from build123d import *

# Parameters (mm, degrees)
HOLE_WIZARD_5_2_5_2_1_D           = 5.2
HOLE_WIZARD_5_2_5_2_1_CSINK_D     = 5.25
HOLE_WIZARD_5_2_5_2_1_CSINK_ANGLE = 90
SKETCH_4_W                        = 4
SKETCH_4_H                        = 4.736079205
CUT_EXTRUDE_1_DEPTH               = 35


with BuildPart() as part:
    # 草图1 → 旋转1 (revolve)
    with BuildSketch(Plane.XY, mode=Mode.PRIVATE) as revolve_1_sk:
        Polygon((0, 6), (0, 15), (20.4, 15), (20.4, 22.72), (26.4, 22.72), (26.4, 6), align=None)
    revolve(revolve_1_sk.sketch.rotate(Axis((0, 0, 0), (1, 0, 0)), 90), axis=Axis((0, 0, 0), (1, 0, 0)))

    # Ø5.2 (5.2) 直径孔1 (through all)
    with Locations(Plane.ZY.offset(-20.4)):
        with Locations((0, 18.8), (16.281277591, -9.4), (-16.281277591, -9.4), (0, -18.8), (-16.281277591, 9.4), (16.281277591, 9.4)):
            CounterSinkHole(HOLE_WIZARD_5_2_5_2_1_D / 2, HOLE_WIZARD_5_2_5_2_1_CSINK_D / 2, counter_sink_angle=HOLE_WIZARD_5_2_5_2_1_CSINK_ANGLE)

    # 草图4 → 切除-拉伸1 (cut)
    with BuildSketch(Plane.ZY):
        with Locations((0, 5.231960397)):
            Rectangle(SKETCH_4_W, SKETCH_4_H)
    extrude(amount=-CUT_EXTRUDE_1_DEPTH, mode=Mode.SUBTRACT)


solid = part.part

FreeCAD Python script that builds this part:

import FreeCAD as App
import Part
import Sketcher

V = App.Vector
Q = App.Units.Quantity

doc = App.newDocument("Part")
body = doc.addObject("PartDesign::Body", "Body")

sketch1 = body.newObject("Sketcher::SketchObject", "Sketch")
sketch1.AttachmentSupport = (doc.getObject("XY_Plane"), [""])
sketch1.MapMode = "FlatFace"
sketch1.addGeometry([
    Part.LineSegment(V(0, 15, 0), V(0, 6, 0)),
    Part.LineSegment(V(0, 6, 0), V(26.4, 6, 0)),
    Part.LineSegment(V(26.4, 6, 0), V(26.4, 22.72, 0)),
    Part.LineSegment(V(26.4, 22.72, 0), V(20.4, 22.72, 0)),
    Part.LineSegment(V(20.4, 22.72, 0), V(20.4, 15, 0)),
    Part.LineSegment(V(20.4, 15, 0), V(0, 15, 0)),
], False)
sketch1.addConstraint([
    Sketcher.Constraint("Coincident", 0, 2, 1, 1),
    Sketcher.Constraint("Coincident", 1, 2, 2, 1),
    Sketcher.Constraint("Coincident", 2, 2, 3, 1),
    Sketcher.Constraint("Coincident", 3, 2, 4, 1),
    Sketcher.Constraint("Coincident", 4, 2, 5, 1),
    Sketcher.Constraint("Coincident", 5, 2, 0, 1),
    Sketcher.Constraint("Vertical", 0),
    Sketcher.Constraint("Horizontal", 1),
    Sketcher.Constraint("Vertical", 2),
    Sketcher.Constraint("Horizontal", 3),
    Sketcher.Constraint("Vertical", 4),
    Sketcher.Constraint("Horizontal", 5),
    Sketcher.Constraint("PointOnObject", 0, 2, -2),
    Sketcher.Constraint("DistanceX", 3, 2, 3, 1, Q("6 mm")),
    Sketcher.Constraint("DistanceY", 0, 2, 0, 1, Q("9 mm")),
    Sketcher.Constraint("DistanceX", 1, 1, 1, 2, Q("26.4 mm")),
    Sketcher.Constraint("DistanceY", -1, 1, 0, 2, Q("6 mm")),
    Sketcher.Constraint("DistanceY", 2, 1, 2, 2, Q("16.72 mm")),
])
revolution = body.newObject("PartDesign::Revolution", "Revolution")
revolution.Profile = sketch1
revolution.ReferenceAxis = (sketch1, ["H_Axis"])
revolution.Angle = 360

sketch2 = body.newObject("Sketcher::SketchObject", "Sketch001")
sketch2.AttachmentSupport = (doc.getObject("YZ_Plane"), [""])
sketch2.MapMode = "FlatFace"
sketch2.AttachmentOffset = App.Placement(V(0, 0, 20.4), App.Rotation())
sketch2.addGeometry([
    Part.Circle(V(18.8, 0, 0), V(0, 0, 1), 2.6),
    Part.Circle(V(-9.4, 16.281278, 0), V(0, 0, 1), 2.6),
    Part.Circle(V(-9.4, -16.281278, 0), V(0, 0, 1), 2.6),
    Part.Circle(V(-18.8, 0, 0), V(0, 0, 1), 2.6),
    Part.Circle(V(9.4, -16.281278, 0), V(0, 0, 1), 2.6),
    Part.Circle(V(9.4, 16.281278, 0), V(0, 0, 1), 2.6),
], False)
sketch2.addConstraint([
    Sketcher.Constraint("Equal", 0, 1),
    Sketcher.Constraint("Equal", 1, 2),
    Sketcher.Constraint("Equal", 2, 3),
    Sketcher.Constraint("Equal", 3, 4),
    Sketcher.Constraint("Equal", 4, 5),
    Sketcher.Constraint("Symmetric", 0, 3, 3, 3, -1, 1),
    Sketcher.Constraint("Symmetric", 1, 3, 4, 3, -1, 1),
    Sketcher.Constraint("Symmetric", 2, 3, 5, 3, -1, 1),
    Sketcher.Constraint("Symmetric", 2, 3, 4, 3, -2),
    Sketcher.Constraint("PointOnObject", 0, 3, -1),
    Sketcher.Constraint("Diameter", 0, Q("5.2 mm")),
    Sketcher.Constraint("DistanceX", -1, 1, 0, 3, Q("18.8 mm")),
    Sketcher.Constraint("DistanceX", 1, 3, -1, 1, Q("9.4 mm")),
    Sketcher.Constraint("DistanceY", -1, 1, 1, 3, Q("16.281278 mm")),
])
doc.recompute()
hole = body.newObject("PartDesign::Hole", "Hole")
hole.Profile = sketch2
hole.ThreadType = "None"
hole.Diameter = 5.2
hole.DepthType = "ThroughAll"
hole.HoleCutType = "Countersink"
hole.HoleCutDiameter = 5.25
hole.HoleCutCountersinkAngle = 90
hole.Reversed = True

sketch3 = body.newObject("Sketcher::SketchObject", "Sketch002")
sketch3.AttachmentSupport = (doc.getObject("YZ_Plane"), [""])
sketch3.MapMode = "FlatFace"
sketch3.addGeometry([
    Part.LineSegment(V(7.6, -2, 0), V(2.863921, -2, 0)),
    Part.LineSegment(V(2.863921, -2, 0), V(2.863921, 2, 0)),
    Part.LineSegment(V(2.863921, 2, 0), V(7.6, 2, 0)),
    Part.LineSegment(V(7.6, 2, 0), V(7.6, -2, 0)),
], False)
sketch3.addConstraint([
    Sketcher.Constraint("Coincident", 0, 2, 1, 1),
    Sketcher.Constraint("Coincident", 1, 2, 2, 1),
    Sketcher.Constraint("Coincident", 2, 2, 3, 1),
    Sketcher.Constraint("Coincident", 3, 2, 0, 1),
    Sketcher.Constraint("Horizontal", 0),
    Sketcher.Constraint("Vertical", 1),
    Sketcher.Constraint("Horizontal", 2),
    Sketcher.Constraint("Vertical", 3),
    Sketcher.Constraint("DistanceY", 1, 1, 1, 2, Q("4 mm")),
    Sketcher.Constraint("DistanceY", 0, 2, -1, 1, Q("2 mm")),
    Sketcher.Constraint("DistanceX", -1, 1, 2, 2, Q("7.6 mm")),
    Sketcher.Constraint("DistanceX", 0, 2, 0, 1, Q("4.736079 mm")),
])
pocket1 = body.newObject("PartDesign::Pocket", "Pocket")
pocket1.Profile = sketch3
pocket1.Length = 35
pocket1.Reversed = True

doc.recompute()
